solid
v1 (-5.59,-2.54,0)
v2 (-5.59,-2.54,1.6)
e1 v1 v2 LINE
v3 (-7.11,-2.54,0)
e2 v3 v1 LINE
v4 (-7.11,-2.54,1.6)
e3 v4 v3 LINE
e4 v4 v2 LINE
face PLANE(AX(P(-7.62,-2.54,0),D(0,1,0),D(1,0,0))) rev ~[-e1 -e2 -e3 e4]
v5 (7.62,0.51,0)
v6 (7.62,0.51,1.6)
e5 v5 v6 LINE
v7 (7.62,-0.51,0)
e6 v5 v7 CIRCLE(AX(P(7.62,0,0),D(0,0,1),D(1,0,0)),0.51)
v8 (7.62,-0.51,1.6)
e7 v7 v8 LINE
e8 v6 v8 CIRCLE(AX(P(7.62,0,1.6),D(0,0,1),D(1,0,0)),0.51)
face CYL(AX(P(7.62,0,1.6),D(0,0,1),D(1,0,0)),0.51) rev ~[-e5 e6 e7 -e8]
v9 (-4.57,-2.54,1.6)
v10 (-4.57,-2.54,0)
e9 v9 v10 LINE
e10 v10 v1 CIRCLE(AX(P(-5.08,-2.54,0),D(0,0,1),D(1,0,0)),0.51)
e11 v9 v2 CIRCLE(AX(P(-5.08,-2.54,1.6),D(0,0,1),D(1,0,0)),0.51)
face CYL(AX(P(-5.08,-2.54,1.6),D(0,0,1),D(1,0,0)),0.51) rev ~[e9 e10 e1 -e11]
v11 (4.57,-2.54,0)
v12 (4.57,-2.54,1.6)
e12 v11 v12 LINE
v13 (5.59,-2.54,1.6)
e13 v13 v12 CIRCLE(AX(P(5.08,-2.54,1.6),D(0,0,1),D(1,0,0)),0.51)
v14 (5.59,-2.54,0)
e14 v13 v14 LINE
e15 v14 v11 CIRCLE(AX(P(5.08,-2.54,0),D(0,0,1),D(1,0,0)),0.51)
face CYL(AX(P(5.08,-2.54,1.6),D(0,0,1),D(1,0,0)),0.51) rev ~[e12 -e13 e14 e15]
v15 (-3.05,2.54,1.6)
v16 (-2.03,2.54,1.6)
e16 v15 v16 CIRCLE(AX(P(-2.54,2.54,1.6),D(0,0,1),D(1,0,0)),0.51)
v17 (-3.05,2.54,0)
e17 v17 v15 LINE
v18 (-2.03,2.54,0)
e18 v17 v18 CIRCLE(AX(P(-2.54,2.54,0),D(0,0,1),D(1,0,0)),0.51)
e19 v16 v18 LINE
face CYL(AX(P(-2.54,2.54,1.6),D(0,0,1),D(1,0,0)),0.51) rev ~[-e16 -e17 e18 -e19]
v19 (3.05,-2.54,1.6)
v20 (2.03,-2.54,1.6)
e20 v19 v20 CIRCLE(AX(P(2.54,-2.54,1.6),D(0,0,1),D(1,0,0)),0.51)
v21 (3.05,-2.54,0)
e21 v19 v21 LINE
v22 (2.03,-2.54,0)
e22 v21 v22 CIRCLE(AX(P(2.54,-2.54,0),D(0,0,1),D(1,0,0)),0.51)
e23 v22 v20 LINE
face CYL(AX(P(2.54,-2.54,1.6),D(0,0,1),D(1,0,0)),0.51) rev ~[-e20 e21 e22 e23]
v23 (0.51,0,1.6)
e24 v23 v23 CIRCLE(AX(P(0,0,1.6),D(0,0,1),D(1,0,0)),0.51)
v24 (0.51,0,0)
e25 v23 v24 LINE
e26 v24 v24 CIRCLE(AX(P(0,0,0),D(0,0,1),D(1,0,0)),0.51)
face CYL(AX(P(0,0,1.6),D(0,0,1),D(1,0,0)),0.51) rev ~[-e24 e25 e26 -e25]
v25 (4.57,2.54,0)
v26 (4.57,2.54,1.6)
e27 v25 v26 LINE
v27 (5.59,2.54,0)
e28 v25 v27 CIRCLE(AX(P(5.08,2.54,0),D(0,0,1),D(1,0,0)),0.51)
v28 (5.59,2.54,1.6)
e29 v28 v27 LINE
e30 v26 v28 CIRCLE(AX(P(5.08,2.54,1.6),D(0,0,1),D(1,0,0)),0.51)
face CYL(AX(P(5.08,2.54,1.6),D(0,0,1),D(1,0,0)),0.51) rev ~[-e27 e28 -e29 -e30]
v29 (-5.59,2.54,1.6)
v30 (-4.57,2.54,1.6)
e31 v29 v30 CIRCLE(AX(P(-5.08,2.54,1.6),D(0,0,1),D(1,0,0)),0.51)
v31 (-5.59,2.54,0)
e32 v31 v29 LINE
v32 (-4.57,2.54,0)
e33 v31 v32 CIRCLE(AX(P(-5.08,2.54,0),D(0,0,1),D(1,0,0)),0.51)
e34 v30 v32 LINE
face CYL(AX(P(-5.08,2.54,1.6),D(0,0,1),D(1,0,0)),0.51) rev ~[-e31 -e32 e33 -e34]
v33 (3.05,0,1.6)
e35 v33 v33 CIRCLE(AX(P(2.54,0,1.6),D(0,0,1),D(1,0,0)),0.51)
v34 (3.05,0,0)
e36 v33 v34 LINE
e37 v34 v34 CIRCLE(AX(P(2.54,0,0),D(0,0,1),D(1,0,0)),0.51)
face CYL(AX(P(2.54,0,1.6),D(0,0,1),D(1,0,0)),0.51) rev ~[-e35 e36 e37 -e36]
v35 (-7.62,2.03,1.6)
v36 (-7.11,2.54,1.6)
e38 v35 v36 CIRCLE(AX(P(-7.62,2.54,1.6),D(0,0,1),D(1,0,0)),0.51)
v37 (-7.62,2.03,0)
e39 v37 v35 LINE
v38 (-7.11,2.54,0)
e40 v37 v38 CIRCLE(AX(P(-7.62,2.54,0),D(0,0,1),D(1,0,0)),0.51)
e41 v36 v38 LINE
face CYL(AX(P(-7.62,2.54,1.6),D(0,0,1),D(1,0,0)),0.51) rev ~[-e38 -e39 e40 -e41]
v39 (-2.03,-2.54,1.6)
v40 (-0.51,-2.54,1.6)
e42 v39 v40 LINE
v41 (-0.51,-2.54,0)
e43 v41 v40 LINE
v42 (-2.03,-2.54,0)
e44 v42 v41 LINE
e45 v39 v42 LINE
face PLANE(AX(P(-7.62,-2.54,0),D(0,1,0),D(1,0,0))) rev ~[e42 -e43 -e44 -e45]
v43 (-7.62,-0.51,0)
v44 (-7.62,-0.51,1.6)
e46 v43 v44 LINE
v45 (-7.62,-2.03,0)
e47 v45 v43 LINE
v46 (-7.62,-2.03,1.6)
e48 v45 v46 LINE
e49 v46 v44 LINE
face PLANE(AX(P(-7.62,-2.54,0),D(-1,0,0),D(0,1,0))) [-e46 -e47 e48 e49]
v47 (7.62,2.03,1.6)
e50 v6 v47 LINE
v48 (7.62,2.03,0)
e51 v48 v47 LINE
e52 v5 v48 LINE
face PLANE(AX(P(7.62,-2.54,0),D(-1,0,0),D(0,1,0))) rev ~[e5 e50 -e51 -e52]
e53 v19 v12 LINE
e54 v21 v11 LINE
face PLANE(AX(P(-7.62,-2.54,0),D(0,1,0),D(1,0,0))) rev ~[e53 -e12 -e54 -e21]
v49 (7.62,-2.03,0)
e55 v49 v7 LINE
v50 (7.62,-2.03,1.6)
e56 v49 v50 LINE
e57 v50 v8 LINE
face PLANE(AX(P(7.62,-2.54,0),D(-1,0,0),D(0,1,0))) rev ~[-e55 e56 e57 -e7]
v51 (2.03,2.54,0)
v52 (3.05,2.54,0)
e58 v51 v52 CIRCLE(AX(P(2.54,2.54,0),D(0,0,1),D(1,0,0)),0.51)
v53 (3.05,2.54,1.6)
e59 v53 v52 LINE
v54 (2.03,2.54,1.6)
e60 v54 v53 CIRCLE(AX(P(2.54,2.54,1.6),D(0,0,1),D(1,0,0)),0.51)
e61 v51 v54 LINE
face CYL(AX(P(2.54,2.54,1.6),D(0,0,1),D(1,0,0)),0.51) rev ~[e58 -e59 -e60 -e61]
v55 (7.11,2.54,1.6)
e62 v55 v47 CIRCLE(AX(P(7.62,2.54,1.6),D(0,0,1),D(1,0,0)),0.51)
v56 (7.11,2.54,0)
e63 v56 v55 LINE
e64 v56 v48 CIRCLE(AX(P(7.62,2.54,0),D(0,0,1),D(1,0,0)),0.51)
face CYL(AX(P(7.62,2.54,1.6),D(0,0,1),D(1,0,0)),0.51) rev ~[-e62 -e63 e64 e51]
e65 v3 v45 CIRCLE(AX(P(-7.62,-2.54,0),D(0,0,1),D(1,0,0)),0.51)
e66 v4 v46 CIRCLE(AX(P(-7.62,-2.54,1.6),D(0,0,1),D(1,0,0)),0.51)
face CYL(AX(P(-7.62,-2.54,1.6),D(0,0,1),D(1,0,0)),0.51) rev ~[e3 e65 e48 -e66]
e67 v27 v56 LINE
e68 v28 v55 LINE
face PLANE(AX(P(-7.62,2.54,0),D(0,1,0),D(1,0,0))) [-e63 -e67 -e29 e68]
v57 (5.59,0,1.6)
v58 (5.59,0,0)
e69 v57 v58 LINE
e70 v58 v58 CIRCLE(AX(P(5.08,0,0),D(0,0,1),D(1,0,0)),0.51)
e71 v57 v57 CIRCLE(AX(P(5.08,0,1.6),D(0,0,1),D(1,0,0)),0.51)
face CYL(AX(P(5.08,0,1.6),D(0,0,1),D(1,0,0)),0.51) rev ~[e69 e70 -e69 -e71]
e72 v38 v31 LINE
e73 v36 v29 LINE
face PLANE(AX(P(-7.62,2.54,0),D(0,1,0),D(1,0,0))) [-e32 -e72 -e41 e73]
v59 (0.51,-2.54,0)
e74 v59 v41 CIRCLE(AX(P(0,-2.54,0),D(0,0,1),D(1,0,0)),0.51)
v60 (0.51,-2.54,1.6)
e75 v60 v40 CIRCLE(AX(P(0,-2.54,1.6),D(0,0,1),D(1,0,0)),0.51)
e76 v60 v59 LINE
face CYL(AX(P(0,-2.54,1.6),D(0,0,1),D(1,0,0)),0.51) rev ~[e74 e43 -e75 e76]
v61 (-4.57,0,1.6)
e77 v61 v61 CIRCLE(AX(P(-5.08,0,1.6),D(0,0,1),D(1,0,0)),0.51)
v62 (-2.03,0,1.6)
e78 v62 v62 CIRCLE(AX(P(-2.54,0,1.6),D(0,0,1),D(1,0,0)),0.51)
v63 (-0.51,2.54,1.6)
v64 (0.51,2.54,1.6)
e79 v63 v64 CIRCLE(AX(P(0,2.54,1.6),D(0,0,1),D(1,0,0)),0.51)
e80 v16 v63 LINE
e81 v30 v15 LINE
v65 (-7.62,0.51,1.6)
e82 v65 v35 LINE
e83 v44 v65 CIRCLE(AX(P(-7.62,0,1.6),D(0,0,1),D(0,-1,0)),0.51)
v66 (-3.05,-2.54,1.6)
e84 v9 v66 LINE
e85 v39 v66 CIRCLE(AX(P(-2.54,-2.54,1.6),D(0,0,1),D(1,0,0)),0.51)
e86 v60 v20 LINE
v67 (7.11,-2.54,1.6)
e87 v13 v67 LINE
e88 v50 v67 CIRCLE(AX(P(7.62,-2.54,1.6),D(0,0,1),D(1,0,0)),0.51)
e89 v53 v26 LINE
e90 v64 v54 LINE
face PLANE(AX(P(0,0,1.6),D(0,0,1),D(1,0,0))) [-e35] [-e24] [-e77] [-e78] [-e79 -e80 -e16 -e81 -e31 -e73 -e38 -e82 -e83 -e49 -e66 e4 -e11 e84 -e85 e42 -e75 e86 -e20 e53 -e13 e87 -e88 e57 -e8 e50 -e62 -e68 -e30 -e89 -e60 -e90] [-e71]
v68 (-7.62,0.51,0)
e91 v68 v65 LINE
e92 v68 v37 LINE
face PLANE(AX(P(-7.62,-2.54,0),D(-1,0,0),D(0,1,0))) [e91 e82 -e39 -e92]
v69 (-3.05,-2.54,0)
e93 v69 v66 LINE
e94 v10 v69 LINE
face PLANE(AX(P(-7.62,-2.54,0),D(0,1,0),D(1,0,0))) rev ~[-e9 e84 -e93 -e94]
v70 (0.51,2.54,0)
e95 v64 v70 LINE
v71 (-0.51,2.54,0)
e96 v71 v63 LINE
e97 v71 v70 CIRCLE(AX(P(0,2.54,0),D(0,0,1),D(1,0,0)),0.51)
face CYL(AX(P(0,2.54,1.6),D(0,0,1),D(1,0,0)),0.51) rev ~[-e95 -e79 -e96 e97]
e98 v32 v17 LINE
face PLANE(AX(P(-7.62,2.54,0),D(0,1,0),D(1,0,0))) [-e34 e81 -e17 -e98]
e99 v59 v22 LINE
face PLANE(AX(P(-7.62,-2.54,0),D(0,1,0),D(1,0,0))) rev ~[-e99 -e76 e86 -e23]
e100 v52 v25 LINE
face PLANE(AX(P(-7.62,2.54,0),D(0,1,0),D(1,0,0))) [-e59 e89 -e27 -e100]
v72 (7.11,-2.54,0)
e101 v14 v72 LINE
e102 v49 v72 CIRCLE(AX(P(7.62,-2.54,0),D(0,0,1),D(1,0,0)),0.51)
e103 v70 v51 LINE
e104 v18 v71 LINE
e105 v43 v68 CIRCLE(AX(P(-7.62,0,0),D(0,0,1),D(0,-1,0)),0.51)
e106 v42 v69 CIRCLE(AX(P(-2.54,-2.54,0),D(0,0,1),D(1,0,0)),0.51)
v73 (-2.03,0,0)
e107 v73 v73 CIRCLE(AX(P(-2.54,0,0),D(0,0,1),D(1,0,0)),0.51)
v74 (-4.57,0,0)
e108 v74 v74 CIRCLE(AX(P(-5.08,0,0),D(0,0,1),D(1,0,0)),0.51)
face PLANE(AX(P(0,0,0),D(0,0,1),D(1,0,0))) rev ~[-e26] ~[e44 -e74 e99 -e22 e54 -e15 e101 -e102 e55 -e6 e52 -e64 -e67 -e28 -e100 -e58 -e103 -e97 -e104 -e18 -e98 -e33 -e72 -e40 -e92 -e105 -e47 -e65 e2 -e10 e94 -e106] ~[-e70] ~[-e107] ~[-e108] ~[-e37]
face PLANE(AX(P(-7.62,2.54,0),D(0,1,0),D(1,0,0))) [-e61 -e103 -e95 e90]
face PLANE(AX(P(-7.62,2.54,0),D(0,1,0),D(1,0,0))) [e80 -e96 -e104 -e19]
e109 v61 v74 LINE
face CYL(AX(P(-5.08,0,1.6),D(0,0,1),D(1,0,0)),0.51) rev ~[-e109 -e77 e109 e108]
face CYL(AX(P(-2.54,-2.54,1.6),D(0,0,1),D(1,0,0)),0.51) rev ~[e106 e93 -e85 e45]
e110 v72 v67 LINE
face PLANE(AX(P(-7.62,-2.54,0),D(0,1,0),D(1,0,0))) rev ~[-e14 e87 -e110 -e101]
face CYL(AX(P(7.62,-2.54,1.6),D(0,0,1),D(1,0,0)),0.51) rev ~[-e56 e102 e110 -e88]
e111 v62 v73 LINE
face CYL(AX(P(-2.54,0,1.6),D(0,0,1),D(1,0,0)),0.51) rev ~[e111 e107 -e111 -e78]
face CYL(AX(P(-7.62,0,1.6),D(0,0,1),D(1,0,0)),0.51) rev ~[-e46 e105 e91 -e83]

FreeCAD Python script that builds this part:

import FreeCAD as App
import Part
import Sketcher
from FreeCAD import Vector
Q = App.Units.Quantity

doc = App.newDocument("Part")
body = doc.addObject("PartDesign::Body", "Body")

# Sketch on XY plane
sketch1 = body.newObject("Sketcher::SketchObject", "Sketch")
sketch1.AttachmentSupport = (doc.getObject("XY_Plane"), [""])
sketch1.MapMode = "FlatFace"
sketch1.addGeometry([
    Part.LineSegment(Vector(-8, 3, 0), Vector(-8, -3, 0)),
    Part.LineSegment(Vector(-8, -3, 0), Vector(8, -3, 0)),
    Part.LineSegment(Vector(8, -3, 0), Vector(8, 3, 0)),
    Part.LineSegment(Vector(8, 3, 0), Vector(-8, 3, 0)),
], False)
sketch1.addConstraint([
    Sketcher.Constraint("Coincident", 0, 2, 1, 1),
    Sketcher.Constraint("Coincident", 1, 2, 2, 1),
    Sketcher.Constraint("Coincident", 2, 2, 3, 1),
    Sketcher.Constraint("Coincident", 3, 2, 0, 1),
    Sketcher.Constraint("Vertical", 0),
    Sketcher.Constraint("Horizontal", 1),
    Sketcher.Constraint("Vertical", 2),
    Sketcher.Constraint("Horizontal", 3),
    Sketcher.Constraint("Symmetric", 0, 2, 2, 2, -1, 1),
    Sketcher.Constraint("DistanceX", 1, 1, 1, 2, Q("0.6 in")),
    Sketcher.Constraint("DistanceY", 0, 2, 0, 1, Q("0.2 in")),
])
pad1 = body.newObject("PartDesign::Pad", "Pad")
pad1.Profile = sketch1
pad1.Length = 1.6

# Sketch on XY plane
sketch2 = body.newObject("Sketcher::SketchObject", "Sketch001")
sketch2.AttachmentSupport = (doc.getObject("XY_Plane"), [""])
sketch2.MapMode = "FlatFace"
sketch2.AttachmentOffset = App.Placement(Vector(0, 0, 1.6), App.Rotation())
sketch2.addGeometry(Part.Circle(Vector(-7.6, 2.5, 0), Vector(0, 0, 1), 0.5), False)
sketch2.addConstraint([
    Sketcher.Constraint("DistanceX", 0, 3, -1, 1, Q("0.3 in")),
    Sketcher.Constraint("DistanceY", -1, 1, 0, 3, Q("0.1 in")),
    Sketcher.Constraint("Diameter", 0, Q("1.02 mm")),
])
pocket1 = body.newObject("PartDesign::Pocket", "Pocket")
pocket1.Profile = sketch2
pocket1.Type = "ThroughAll"

# Sketch on XY plane
sketch3 = body.newObject("Sketcher::SketchObject", "Sketch002")
sketch3.AttachmentSupport = (doc.getObject("XY_Plane"), [""])
sketch3.MapMode = "FlatFace"
sketch3.AttachmentOffset = App.Placement(Vector(0, 0, 1.6), App.Rotation())
sketch3.addGeometry(Part.Circle(Vector(-5.1, 2.5, 0), Vector(0, 0, 1), 0.5), False)
sketch3.addConstraint([
    Sketcher.Constraint("DistanceX", 0, 3, -1, 1, Q("0.2 in")),
    Sketcher.Constraint("DistanceY", -1, 1, 0, 3, Q("0.1 in")),
    Sketcher.Constraint("Diameter", 0, Q("1.02 mm")),
])
pocket2 = body.newObject("PartDesign::Pocket", "Pocket001")
pocket2.Profile = sketch3
pocket2.Type = "ThroughAll"

# Sketch on XY plane
sketch4 = body.newObject("Sketcher::SketchObject", "Sketch003")
sketch4.AttachmentSupport = (doc.getObject("XY_Plane"), [""])
sketch4.MapMode = "FlatFace"
sketch4.AttachmentOffset = App.Placement(Vector(0, 0, 1.6), App.Rotation())
sketch4.addGeometry(Part.Circle(Vector(-2.5, 2.5, 0), Vector(0, 0, 1), 0.5), False)
sketch4.addConstraint([
    Sketcher.Constraint("DistanceX", 0, 3, -1, 1, Q("0.1 in")),
    Sketcher.Constraint("DistanceY", -1, 1, 0, 3, Q("0.1 in")),
    Sketcher.Constraint("Diameter", 0, Q("1.02 mm")),
])
pocket3 = body.newObject("PartDesign::Pocket", "Pocket002")
pocket3.Profile = sketch4
pocket3.Type = "ThroughAll"

# Sketch on XY plane
sketch5 = body.newObject("Sketcher::SketchObject", "Sketch004")
sketch5.AttachmentSupport = (doc.getObject("XY_Plane"), [""])
sketch5.MapMode = "FlatFace"
sketch5.AttachmentOffset = App.Placement(Vector(0, 0, 1.6), App.Rotation())
sketch5.addGeometry(Part.Circle(Vector(0, 2.5, 0), Vector(0, 0, 1), 0.5), False)
sketch5.addConstraint([
    Sketcher.Constraint("PointOnObject", 0, 3, -2),
    Sketcher.Constraint("DistanceY", -1, 1, 0, 3, Q("0.1 in")),
    Sketcher.Constraint("Diameter", 0, Q("1.02 mm")),
])
pocket4 = body.newObject("PartDesign::Pocket", "Pocket003")
pocket4.Profile = sketch5
pocket4.Type = "ThroughAll"

# Sketch on XY plane
sketch6 = body.newObject("Sketcher::SketchObject", "Sketch005")
sketch6.AttachmentSupport = (doc.getObject("XY_Plane"), [""])
sketch6.MapMode = "FlatFace"
sketch6.AttachmentOffset = App.Placement(Vector(0, 0, 1.6), App.Rotation())
sketch6.addGeometry(Part.Circle(Vector(2.5, 2.5, 0), Vector(0, 0, 1), 0.5), False)
sketch6.addConstraint([
    Sketcher.Constraint("DistanceX", -1, 1, 0, 3, Q("0.1 in")),
    Sketcher.Constraint("DistanceY", -1, 1, 0, 3, Q("0.1 in")),
    Sketcher.Constraint("Diameter", 0, Q("1.02 mm")),
])
pocket5 = body.newObject("PartDesign::Pocket", "Pocket004")
pocket5.Profile = sketch6
pocket5.Type = "ThroughAll"

# Sketch on XY plane
sketch7 = body.newObject("Sketcher::SketchObject", "Sketch006")
sketch7.AttachmentSupport = (doc.getObject("XY_Plane"), [""])
sketch7.MapMode = "FlatFace"
sketch7.AttachmentOffset = App.Placement(Vector(0, 0, 1.6), App.Rotation())
sketch7.addGeometry(Part.Circle(Vector(5.1, 2.5, 0), Vector(0, 0, 1), 0.5), False)
sketch7.addConstraint([
    Sketcher.Constraint("DistanceX", -1, 1, 0, 3, Q("0.2 in")),
    Sketcher.Constraint("DistanceY", -1, 1, 0, 3, Q("0.1 in")),
    Sketcher.Constraint("Diameter", 0, Q("1.02 mm")),
])
pocket6 = body.newObject("PartDesign::Pocket", "Pocket005")
pocket6.Profile = sketch7
pocket6.Type = "ThroughAll"

# Sketch on XY plane
sketch8 = body.newObject("Sketcher::SketchObject", "Sketch007")
sketch8.AttachmentSupport = (doc.getObject("XY_Plane"), [""])
sketch8.MapMode = "FlatFace"
sketch8.AttachmentOffset = App.Placement(Vector(0, 0, 1.6), App.Rotation())
sketch8.addGeometry(Part.Circle(Vector(7.6, 2.5, 0), Vector(0, 0, 1), 0.5), False)
sketch8.addConstraint([
    Sketcher.Constraint("DistanceX", -1, 1, 0, 3, Q("0.3 in")),
    Sketcher.Constraint("DistanceY", -1, 1, 0, 3, Q("0.1 in")),
    Sketcher.Constraint("Diameter", 0, Q("1.02 mm")),
])
pocket7 = body.newObject("PartDesign::Pocket", "Pocket006")
pocket7.Profile = sketch8
pocket7.Type = "ThroughAll"
doc.recompute()

linearpattern = body.newObject("PartDesign::LinearPattern", "LinearPattern")
linearpattern.Originals = [pocket1, pocket2, pocket3, pocket4, pocket5, pocket6, pocket7]
linearpattern.Direction = (doc.getObject("Y_Axis"), [""])
linearpattern.Mode = "offset"
linearpattern.Offset = Q("0.1 in")
linearpattern.Occurrences = 3
linearpattern.Reversed = True
body.Tip = linearpattern

doc.recompute()
